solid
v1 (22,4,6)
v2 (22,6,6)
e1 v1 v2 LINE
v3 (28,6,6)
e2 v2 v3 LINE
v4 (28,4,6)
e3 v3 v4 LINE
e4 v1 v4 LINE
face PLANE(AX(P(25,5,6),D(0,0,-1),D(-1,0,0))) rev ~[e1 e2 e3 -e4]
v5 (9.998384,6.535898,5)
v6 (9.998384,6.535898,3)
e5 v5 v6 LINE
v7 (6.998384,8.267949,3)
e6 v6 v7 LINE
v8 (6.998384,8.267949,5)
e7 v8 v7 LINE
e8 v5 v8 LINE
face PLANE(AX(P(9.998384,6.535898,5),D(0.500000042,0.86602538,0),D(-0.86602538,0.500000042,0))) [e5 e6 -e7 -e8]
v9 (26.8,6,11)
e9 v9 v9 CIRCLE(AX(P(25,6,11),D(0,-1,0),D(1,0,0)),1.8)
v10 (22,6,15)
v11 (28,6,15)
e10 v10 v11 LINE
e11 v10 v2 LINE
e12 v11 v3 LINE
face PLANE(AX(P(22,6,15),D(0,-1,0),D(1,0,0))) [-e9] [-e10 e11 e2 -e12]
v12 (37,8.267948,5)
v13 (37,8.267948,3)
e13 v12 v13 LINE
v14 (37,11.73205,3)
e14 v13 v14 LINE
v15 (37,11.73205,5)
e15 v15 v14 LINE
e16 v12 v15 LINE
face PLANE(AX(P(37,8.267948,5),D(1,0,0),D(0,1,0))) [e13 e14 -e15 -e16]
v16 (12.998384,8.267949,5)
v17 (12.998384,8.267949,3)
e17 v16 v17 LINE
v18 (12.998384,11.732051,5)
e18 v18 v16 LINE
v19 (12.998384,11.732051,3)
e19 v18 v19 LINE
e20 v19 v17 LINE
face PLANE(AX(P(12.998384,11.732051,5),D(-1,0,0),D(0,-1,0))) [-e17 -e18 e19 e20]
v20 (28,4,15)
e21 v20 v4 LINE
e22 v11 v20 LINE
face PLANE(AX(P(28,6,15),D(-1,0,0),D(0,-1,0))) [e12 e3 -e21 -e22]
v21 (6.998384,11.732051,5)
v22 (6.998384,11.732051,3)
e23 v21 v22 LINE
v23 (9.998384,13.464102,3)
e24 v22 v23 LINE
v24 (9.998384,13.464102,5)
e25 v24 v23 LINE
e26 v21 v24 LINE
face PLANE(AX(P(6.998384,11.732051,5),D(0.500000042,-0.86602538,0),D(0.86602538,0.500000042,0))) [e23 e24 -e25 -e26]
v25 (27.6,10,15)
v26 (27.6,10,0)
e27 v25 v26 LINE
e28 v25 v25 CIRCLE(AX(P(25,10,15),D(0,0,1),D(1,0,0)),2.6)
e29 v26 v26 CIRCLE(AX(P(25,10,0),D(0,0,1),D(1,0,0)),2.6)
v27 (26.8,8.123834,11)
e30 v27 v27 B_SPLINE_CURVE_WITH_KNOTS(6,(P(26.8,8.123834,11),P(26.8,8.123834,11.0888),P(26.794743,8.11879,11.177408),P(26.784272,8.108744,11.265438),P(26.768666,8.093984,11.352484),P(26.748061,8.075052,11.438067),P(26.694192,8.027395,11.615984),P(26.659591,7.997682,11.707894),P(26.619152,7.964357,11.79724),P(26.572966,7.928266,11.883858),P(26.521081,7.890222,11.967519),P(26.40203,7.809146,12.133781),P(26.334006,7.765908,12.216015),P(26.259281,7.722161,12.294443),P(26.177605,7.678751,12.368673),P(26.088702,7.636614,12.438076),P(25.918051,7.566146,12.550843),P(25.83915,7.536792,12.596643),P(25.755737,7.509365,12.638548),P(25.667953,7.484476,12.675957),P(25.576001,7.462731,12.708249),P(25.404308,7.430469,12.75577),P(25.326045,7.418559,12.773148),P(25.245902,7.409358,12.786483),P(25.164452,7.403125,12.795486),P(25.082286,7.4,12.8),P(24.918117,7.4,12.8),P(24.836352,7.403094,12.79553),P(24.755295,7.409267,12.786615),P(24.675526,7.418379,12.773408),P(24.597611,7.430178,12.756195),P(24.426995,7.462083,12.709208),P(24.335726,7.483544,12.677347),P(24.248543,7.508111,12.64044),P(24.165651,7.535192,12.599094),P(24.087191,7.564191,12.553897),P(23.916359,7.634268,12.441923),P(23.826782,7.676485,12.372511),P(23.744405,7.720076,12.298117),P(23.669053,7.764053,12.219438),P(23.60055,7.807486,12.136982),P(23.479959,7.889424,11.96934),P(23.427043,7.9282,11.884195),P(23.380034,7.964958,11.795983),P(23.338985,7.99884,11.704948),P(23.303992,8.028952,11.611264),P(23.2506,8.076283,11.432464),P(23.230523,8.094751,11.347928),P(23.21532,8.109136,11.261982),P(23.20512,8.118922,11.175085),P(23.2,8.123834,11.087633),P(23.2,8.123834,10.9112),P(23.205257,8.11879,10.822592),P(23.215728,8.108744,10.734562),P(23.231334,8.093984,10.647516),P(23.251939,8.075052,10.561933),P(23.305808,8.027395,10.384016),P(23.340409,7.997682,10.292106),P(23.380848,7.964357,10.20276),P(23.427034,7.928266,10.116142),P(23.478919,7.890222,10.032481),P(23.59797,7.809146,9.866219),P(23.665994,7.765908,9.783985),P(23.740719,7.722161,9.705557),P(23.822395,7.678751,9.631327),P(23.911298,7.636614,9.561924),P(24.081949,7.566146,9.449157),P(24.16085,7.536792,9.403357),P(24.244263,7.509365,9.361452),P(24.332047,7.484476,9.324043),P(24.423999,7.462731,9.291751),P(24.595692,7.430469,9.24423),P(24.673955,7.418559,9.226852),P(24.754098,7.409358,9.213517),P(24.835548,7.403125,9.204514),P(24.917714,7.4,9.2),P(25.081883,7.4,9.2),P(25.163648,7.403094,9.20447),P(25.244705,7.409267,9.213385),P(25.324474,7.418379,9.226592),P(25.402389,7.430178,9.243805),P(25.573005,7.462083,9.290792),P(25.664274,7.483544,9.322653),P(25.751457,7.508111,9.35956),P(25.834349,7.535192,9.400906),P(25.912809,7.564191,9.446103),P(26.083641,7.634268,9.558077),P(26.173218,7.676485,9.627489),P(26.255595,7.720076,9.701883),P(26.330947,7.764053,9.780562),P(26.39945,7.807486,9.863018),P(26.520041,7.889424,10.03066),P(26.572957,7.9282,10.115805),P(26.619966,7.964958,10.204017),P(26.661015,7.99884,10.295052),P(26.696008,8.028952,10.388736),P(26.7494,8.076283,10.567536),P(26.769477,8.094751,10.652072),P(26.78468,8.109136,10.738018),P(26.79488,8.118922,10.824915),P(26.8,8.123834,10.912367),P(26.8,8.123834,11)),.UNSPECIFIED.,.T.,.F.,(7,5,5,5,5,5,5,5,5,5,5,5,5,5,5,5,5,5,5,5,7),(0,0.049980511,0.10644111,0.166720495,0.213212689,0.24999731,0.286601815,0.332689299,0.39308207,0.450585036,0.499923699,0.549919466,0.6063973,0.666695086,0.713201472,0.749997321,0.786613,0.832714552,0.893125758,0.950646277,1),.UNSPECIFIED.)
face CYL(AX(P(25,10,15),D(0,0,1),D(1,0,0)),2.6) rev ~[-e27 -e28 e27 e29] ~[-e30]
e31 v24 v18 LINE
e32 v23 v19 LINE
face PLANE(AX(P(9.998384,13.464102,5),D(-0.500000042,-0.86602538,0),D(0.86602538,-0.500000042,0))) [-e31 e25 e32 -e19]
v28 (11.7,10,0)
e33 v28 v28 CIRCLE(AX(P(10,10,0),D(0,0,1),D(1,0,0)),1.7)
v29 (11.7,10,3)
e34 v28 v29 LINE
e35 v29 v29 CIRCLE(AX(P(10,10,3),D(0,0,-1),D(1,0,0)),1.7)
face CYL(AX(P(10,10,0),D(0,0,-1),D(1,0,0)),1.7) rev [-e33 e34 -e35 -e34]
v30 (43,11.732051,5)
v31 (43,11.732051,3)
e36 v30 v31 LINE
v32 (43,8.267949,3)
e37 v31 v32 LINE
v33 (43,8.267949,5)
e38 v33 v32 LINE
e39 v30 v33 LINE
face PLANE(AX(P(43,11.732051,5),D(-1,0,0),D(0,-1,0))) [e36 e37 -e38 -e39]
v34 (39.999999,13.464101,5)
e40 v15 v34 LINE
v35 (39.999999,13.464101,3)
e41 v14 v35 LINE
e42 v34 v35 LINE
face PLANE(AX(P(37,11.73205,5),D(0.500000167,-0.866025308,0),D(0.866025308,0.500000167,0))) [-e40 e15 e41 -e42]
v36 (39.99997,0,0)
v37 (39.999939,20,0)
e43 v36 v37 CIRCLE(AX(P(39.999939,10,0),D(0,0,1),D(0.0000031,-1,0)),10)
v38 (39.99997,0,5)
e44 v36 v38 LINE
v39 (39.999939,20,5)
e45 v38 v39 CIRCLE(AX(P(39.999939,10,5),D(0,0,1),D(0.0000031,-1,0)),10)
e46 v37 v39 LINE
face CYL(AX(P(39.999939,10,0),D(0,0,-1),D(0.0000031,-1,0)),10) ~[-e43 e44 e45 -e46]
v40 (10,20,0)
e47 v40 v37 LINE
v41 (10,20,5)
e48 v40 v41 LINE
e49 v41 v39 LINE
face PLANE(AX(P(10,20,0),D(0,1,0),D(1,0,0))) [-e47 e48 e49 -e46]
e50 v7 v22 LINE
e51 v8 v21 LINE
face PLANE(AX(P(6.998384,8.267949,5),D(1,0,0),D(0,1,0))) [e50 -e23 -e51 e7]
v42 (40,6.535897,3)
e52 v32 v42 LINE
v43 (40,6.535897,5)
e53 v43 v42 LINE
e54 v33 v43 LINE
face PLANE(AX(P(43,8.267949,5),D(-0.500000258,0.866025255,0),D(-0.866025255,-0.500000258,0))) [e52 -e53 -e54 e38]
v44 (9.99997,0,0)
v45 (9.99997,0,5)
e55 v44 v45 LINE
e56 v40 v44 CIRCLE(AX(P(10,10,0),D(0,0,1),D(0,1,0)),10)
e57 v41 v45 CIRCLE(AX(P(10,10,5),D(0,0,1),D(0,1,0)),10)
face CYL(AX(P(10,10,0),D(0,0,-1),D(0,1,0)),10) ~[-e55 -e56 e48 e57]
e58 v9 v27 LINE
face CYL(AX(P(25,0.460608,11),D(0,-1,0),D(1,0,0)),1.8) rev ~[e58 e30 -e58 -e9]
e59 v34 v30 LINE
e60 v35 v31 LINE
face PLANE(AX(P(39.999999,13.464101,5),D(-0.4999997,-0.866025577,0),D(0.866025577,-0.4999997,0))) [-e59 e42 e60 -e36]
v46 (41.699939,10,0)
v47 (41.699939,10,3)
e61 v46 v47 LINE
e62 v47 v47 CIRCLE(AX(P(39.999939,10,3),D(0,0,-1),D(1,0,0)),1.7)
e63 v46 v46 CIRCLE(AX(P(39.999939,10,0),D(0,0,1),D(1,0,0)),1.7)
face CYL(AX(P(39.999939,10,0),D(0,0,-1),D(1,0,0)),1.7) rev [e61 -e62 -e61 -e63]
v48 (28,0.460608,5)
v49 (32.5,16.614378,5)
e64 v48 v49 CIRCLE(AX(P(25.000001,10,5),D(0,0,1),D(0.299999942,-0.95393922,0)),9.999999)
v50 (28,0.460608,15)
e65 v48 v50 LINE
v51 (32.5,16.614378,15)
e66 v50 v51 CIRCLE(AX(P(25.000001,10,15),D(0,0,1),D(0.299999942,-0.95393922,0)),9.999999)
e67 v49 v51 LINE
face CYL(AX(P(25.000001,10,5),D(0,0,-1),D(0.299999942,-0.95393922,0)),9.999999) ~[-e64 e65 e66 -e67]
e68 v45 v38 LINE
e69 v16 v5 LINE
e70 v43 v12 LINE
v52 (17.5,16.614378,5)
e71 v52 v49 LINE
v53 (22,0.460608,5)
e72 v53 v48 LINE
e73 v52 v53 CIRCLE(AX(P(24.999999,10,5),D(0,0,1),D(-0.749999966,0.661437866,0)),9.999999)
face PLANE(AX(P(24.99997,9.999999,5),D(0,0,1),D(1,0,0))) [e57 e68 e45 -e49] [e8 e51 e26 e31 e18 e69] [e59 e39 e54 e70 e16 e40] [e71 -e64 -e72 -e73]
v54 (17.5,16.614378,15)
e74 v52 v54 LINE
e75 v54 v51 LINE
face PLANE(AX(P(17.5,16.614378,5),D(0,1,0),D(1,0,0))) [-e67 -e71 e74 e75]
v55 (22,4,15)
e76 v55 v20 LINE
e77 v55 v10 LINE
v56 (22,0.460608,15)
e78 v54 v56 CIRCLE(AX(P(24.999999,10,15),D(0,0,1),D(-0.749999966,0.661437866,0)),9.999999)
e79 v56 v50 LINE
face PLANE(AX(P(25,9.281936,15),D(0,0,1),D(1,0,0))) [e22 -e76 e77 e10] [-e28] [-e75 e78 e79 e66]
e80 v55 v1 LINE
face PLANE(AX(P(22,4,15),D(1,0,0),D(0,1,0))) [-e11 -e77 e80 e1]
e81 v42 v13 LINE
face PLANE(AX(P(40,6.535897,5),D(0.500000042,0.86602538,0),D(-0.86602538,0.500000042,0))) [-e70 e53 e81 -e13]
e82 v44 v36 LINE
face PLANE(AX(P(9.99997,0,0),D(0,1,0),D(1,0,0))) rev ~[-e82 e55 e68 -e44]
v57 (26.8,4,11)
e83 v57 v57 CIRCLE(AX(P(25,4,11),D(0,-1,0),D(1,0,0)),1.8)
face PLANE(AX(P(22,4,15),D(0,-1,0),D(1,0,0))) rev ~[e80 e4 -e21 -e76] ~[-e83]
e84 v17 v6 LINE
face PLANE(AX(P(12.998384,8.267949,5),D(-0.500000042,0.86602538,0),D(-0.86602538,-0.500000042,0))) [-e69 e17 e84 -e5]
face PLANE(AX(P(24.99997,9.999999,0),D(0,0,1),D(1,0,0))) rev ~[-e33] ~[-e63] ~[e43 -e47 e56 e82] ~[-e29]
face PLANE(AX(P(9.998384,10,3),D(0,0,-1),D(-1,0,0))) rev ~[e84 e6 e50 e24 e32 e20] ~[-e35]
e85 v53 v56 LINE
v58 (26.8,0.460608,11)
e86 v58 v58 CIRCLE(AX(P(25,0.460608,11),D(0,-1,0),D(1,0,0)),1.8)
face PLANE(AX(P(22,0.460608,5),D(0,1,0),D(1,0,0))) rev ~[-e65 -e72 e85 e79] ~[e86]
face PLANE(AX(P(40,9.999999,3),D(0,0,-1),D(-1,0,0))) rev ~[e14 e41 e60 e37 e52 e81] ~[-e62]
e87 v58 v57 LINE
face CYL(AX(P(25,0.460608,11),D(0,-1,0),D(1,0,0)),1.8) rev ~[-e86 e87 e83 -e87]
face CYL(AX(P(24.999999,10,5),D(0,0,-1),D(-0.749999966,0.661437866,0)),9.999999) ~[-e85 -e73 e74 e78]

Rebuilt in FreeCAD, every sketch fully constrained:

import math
import FreeCAD as App
import Part
import Sketcher
from FreeCAD import Vector
Q = App.Units.Quantity

doc = App.newDocument("Part")
body = doc.addObject("PartDesign::Body", "Body")

# Sketch on XY plane
sketch1 = body.newObject("Sketcher::SketchObject", "Sketch")
sketch1.AttachmentSupport = (doc.getObject("XY_Plane"), [""])
sketch1.MapMode = "FlatFace"
sketch1.addGeometry([
    Part.ArcOfCircle(Part.Circle(Vector(10, 10, 0), Vector(0, 0, 1), 10), math.radians(90), math.radians(269.999828)),  # 0
    Part.LineSegment(Vector(9.99997, 0, 0), Vector(39.99997, 0, 0)),  # 1
    Part.ArcOfCircle(Part.Circle(Vector(39.999939, 10, 0), Vector(0, 0, 1), 10), math.radians(-89.999822), math.radians(90)),  # 2
    Part.LineSegment(Vector(39.999939, 20, 0), Vector(10, 20, 0)),  # 3
    Part.Circle(Vector(10, 10, 0), Vector(0, 0, 1), 1.7),  # 4
    Part.Circle(Vector(39.999939, 10, 0), Vector(0, 0, 1), 1.7),  # 5
], False)
sketch1.addConstraint([
    Sketcher.Constraint("Coincident", 0, 2, 1, 1),
    Sketcher.Constraint("Coincident", 1, 2, 2, 1),
    Sketcher.Constraint("Tangent", 2, 2, 3, 1),
    Sketcher.Constraint("Tangent", 3, 2, 0, 1),
    Sketcher.Constraint("Horizontal", 1),
    Sketcher.Constraint("Horizontal", 3),
    Sketcher.Constraint("Coincident", 4, 3, 0, 3),
    Sketcher.Constraint("Coincident", 5, 3, 2, 3),
    Sketcher.Constraint("Equal", 4, 5),
    Sketcher.Constraint("PointOnObject", 0, 2, -1),
    Sketcher.Constraint("Radius", 0, Q("10 mm")),
    Sketcher.Constraint("Diameter", 4, Q("3.4 mm")),
    Sketcher.Constraint("DistanceX", 1, 1, 1, 2, Q("30 mm")),
    Sketcher.Constraint("DistanceX", -1, 1, 0, 3, Q("10 mm")),
    Sketcher.Constraint("DistanceX", 3, 2, 3, 1, Q("29.999939 mm")),
    Sketcher.Constraint("DistanceX", -1, 1, 0, 2, Q("9.99997 mm")),
])
pad1 = body.newObject("PartDesign::Pad", "Pad")
pad1.Profile = sketch1
pad1.Length = 5

# Sketch on XY plane
sketch2 = body.newObject("Sketcher::SketchObject", "Sketch001")
sketch2.AttachmentSupport = (doc.getObject("XY_Plane"), [""])
sketch2.MapMode = "FlatFace"
sketch2.AttachmentOffset = App.Placement(Vector(0, 0, 5), App.Rotation())
sketch2.addGeometry([
    Part.ArcOfCircle(Part.Circle(Vector(25.000001, 10, 0), Vector(0, 0, 1), 9.999999), math.radians(-72.5424), math.radians(41.409625)),
    Part.LineSegment(Vector(32.5, 16.614378, 0), Vector(17.5, 16.614378, 0)),
    Part.ArcOfCircle(Part.Circle(Vector(24.999999, 10, 0), Vector(0, 0, 1), 9.999999), math.radians(138.590375), math.radians(252.5424)),
    Part.LineSegment(Vector(22, 0.460608, 0), Vector(28, 0.460608, 0)),
], False)
sketch2.addConstraint([
    Sketcher.Constraint("Coincident", 0, 2, 1, 1),
    Sketcher.Constraint("Coincident", 1, 2, 2, 1),
    Sketcher.Constraint("Coincident", 2, 2, 3, 1),
    Sketcher.Constraint("Coincident", 3, 2, 0, 1),
    Sketcher.Constraint("Horizontal", 1),
    Sketcher.Constraint("Horizontal", 3),
    Sketcher.Constraint("Coincident", 2, 3, 0, 3),
    Sketcher.Constraint("Equal", 0, 2),
    Sketcher.Constraint("Radius", 0, Q("9.999999 mm")),
    Sketcher.Constraint("DistanceX", 1, 2, 1, 1, Q("15 mm")),
    Sketcher.Constraint("DistanceX", 3, 1, 3, 2, Q("6 mm")),
    Sketcher.Constraint("DistanceX", -1, 1, 0, 3, Q("25.000001 mm")),
    Sketcher.Constraint("DistanceY", -1, 1, 0, 3, Q("10 mm")),
])
pad2 = body.newObject("PartDesign::Pad", "Pad001")
pad2.Profile = sketch2
pad2.Length = 10

# Sketch on XY plane
sketch3 = body.newObject("Sketcher::SketchObject", "Sketch002")
sketch3.AttachmentSupport = (doc.getObject("XY_Plane"), [""])
sketch3.MapMode = "FlatFace"
sketch3.AttachmentOffset = App.Placement(Vector(0, 0, 15), App.Rotation())
sketch3.addGeometry(Part.Circle(Vector(25, 10, 0), Vector(0, 0, 1), 2.6), False)
sketch3.addConstraint([
    Sketcher.Constraint("Diameter", 0, Q("5.2 mm")),
    Sketcher.Constraint("DistanceX", -1, 1, 0, 3, Q("25 mm")),
    Sketcher.Constraint("DistanceY", -1, 1, 0, 3, Q("10 mm")),
])
pocket1 = body.newObject("PartDesign::Pocket", "Pocket")
pocket1.Profile = sketch3
pocket1.Length = 15

# Sketch on XY plane
sketch4 = body.newObject("Sketcher::SketchObject", "Sketch003")
sketch4.AttachmentSupport = (doc.getObject("XY_Plane"), [""])
sketch4.MapMode = "FlatFace"
sketch4.AttachmentOffset = App.Placement(Vector(0, 0, 15), App.Rotation())
sketch4.addGeometry([
    Part.LineSegment(Vector(28, 6, 0), Vector(22, 6, 0)),
    Part.LineSegment(Vector(22, 6, 0), Vector(22, 4, 0)),
    Part.LineSegment(Vector(22, 4, 0), Vector(28, 4, 0)),
    Part.LineSegment(Vector(28, 4, 0), Vector(28, 6, 0)),
], False)
sketch4.addConstraint([
    Sketcher.Constraint("Coincident", 0, 2, 1, 1),
    Sketcher.Constraint("Coincident", 1, 2, 2, 1),
    Sketcher.Constraint("Coincident", 2, 2, 3, 1),
    Sketcher.Constraint("Coincident", 3, 2, 0, 1),
    Sketcher.Constraint("Horizontal", 0),
    Sketcher.Constraint("Vertical", 1),
    Sketcher.Constraint("Horizontal", 2),
    Sketcher.Constraint("Vertical", 3),
    Sketcher.Constraint("DistanceX", 0, 2, 0, 1, Q("6 mm")),
    Sketcher.Constraint("DistanceY", 1, 2, 1, 1, Q("2 mm")),
    Sketcher.Constraint("DistanceX", -1, 1, 0, 2, Q("22 mm")),
    Sketcher.Constraint("DistanceY", -1, 1, 0, 2, Q("6 mm")),
])
pocket2 = body.newObject("PartDesign::Pocket", "Pocket001")
pocket2.Profile = sketch4
pocket2.Length = 9

# Sketch on XZ plane
sketch5 = body.newObject("Sketcher::SketchObject", "Sketch004")
sketch5.AttachmentSupport = (doc.getObject("XZ_Plane"), [""])
sketch5.MapMode = "FlatFace"
sketch5.AttachmentOffset = App.Placement(Vector(0, 0, -0.460608), App.Rotation())
sketch5.addGeometry(Part.Circle(Vector(25, 11, 0), Vector(0, 0, 1), 1.8), False)
sketch5.addConstraint([
    Sketcher.Constraint("Diameter", 0, Q("3.6 mm")),
    Sketcher.Constraint("DistanceX", -1, 1, 0, 3, Q("25 mm")),
    Sketcher.Constraint("DistanceY", -1, 1, 0, 3, Q("11 mm")),
])
pocket3 = body.newObject("PartDesign::Pocket", "Pocket002")
pocket3.Profile = sketch5
pocket3.Length = 8

# Sketch on XY plane
sketch6 = body.newObject("Sketcher::SketchObject", "Sketch005")
sketch6.AttachmentSupport = (doc.getObject("XY_Plane"), [""])
sketch6.MapMode = "FlatFace"
sketch6.AttachmentOffset = App.Placement(Vector(0, 0, 5), App.Rotation())
sketch6.addGeometry([
    Part.LineSegment(Vector(6.998384, 11.732051, 0), Vector(6.998384, 8.267949, 0)),  # 0
    Part.LineSegment(Vector(6.998384, 8.267949, 0), Vector(9.998384, 6.535898, 0)),  # 1
    Part.LineSegment(Vector(9.998384, 6.535898, 0), Vector(12.998384, 8.267949, 0)),  # 2
    Part.LineSegment(Vector(12.998384, 8.267949, 0), Vector(12.998384, 11.732051, 0)),  # 3
    Part.LineSegment(Vector(12.998384, 11.732051, 0), Vector(9.998384, 13.464102, 0)),  # 4
    Part.LineSegment(Vector(9.998384, 13.464102, 0), Vector(6.998384, 11.732051, 0)),  # 5
    Part.LineSegment(Vector(43, 11.732051, 0), Vector(39.999999, 13.464101, 0)),  # 6
    Part.LineSegment(Vector(39.999999, 13.464101, 0), Vector(37, 11.73205, 0)),  # 7
    Part.LineSegment(Vector(37, 11.73205, 0), Vector(37, 8.267948, 0)),  # 8
    Part.LineSegment(Vector(37, 8.267948, 0), Vector(40, 6.535897, 0)),  # 9
    Part.LineSegment(Vector(40, 6.535897, 0), Vector(43, 8.267949, 0)),  # 10
    Part.LineSegment(Vector(43, 8.267949, 0), Vector(43, 11.732051, 0)),  # 11
], False)
sketch6.addConstraint([
    Sketcher.Constraint("Coincident", 0, 2, 1, 1),
    Sketcher.Constraint("Coincident", 1, 2, 2, 1),
    Sketcher.Constraint("Coincident", 2, 2, 3, 1),
    Sketcher.Constraint("Coincident", 3, 2, 4, 1),
    Sketcher.Constraint("Coincident", 4, 2, 5, 1),
    Sketcher.Constraint("Coincident", 5, 2, 0, 1),
    Sketcher.Constraint("Coincident", 6, 2, 7, 1),
    Sketcher.Constraint("Coincident", 7, 2, 8, 1),
    Sketcher.Constraint("Coincident", 8, 2, 9, 1),
    Sketcher.Constraint("Coincident", 9, 2, 10, 1),
    Sketcher.Constraint("Coincident", 10, 2, 11, 1),
    Sketcher.Constraint("Coincident", 11, 2, 6, 1),
    Sketcher.Constraint("Vertical", 0),
    Sketcher.Constraint("Vertical", 3),
    Sketcher.Constraint("Vertical", 8),
    Sketcher.Constraint("Vertical", 11),
    Sketcher.Constraint("Parallel", 1, 4),
    Sketcher.Constraint("Parallel", 2, 5),
    Sketcher.Constraint("Parallel", 4, 6),
    Sketcher.Constraint("Parallel", 5, 7),
    Sketcher.Constraint("Parallel", 6, 9),
    Sketcher.Constraint("Parallel", 7, 10),
    Sketcher.Constraint("Horizontal", 0, 2, 2, 2),
    Sketcher.Constraint("Horizontal", 3, 2, 5, 2),
    Sketcher.Constraint("Horizontal", 4, 2, 6, 2),
    Sketcher.Constraint("Horizontal", 5, 2, 7, 2),
    Sketcher.Constraint("Horizontal", 2, 2, 8, 2),
    Sketcher.Constraint("Horizontal", 1, 2, 9, 2),
    Sketcher.Constraint("Horizontal", 8, 2, 10, 2),
    Sketcher.Constraint("Vertical", 1, 2, 4, 2),
    Sketcher.Constraint("Angle", 1, Q("-30.000003 deg")),
    Sketcher.Constraint("DistanceX", -1, 1, 6, 2, Q("39.999999 mm")),
    Sketcher.Constraint("DistanceX", -1, 1, 7, 2, Q("37 mm")),
    Sketcher.Constraint("DistanceY", 8, 2, 8, 1, Q("3.464102 mm")),
    Sketcher.Constraint("DistanceY", -1, 1, 1, 2, Q("6.535898 mm")),
    Sketcher.Constraint("DistanceX", -1, 1, 0, 2, Q("6.998384 mm")),
])
pocket4 = body.newObject("PartDesign::Pocket", "Pocket003")
pocket4.Profile = sketch6
pocket4.Length = 2

doc.recompute()
